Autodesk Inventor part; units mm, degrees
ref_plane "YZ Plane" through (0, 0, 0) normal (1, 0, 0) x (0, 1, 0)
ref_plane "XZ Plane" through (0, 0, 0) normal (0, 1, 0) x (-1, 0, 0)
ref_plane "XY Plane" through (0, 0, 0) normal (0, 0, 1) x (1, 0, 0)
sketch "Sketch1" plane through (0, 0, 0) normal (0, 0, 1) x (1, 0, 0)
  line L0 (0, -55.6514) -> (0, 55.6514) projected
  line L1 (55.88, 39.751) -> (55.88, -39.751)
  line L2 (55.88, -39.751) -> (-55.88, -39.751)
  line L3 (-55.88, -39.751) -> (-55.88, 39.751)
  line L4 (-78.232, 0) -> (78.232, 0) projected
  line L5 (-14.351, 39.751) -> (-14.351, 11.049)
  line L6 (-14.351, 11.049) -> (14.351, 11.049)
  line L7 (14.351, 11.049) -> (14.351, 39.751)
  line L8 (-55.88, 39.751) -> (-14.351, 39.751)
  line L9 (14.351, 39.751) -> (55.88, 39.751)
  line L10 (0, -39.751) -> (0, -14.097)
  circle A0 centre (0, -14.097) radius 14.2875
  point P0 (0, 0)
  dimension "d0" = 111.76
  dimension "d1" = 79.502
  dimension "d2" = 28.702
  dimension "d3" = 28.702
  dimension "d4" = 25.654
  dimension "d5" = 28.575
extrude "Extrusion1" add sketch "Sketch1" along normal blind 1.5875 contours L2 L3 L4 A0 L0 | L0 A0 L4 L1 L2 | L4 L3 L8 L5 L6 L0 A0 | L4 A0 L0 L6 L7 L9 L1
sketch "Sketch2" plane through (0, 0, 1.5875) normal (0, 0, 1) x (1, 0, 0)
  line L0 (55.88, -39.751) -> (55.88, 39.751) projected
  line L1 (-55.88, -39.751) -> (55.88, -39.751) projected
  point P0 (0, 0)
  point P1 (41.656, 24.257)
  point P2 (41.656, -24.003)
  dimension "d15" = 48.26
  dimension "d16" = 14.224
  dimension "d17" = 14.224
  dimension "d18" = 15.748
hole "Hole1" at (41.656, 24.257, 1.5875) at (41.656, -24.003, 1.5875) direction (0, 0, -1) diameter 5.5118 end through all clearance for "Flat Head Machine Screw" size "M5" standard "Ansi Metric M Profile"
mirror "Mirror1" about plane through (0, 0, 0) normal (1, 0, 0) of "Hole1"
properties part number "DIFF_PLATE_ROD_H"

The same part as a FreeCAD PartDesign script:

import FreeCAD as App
import Part
import Sketcher
from FreeCAD import Vector
Q = App.Units.Quantity

doc = App.newDocument("Part")
body = doc.addObject("PartDesign::Body", "Body")

# Sketch on XY plane
sketch1 = body.newObject("Sketcher::SketchObject", "Sketch")
sketch1.AttachmentSupport = (doc.getObject("XY_Plane"), [""])
sketch1.MapMode = "FlatFace"
sketch1.addGeometry(Part.LineSegment(Vector(-56, -40, 0), Vector(56, -40, 0)), False)
sketch1.addGeometry(Part.LineSegment(Vector(56, -40, 0), Vector(56, 40, 0)), False)
sketch1.addGeometry(Part.LineSegment(Vector(56, 40, 0), Vector(14, 40, 0)), False)
sketch1.addGeometry(Part.LineSegment(Vector(14, 40, 0), Vector(14, 11, 0)), False)
sketch1.addGeometry(Part.LineSegment(Vector(14, 11, 0), Vector(-14, 11, 0)), False)
sketch1.addGeometry(Part.LineSegment(Vector(-14, 11, 0), Vector(-14, 40, 0)), False)
sketch1.addGeometry(Part.LineSegment(Vector(-14, 40, 0), Vector(-56, 40, 0)), False)
sketch1.addGeometry(Part.LineSegment(Vector(-56, 40, 0), Vector(-56, -40, 0)), False)
sketch1.addGeometry(Part.Circle(Vector(0, -14, 0), Vector(0, 0, 1), 14), False)
sketch1.addConstraint(Sketcher.Constraint("Coincident", 0, 2, 1, 1))
sketch1.addConstraint(Sketcher.Constraint("Coincident", 1, 2, 2, 1))
sketch1.addConstraint(Sketcher.Constraint("Coincident", 2, 2, 3, 1))
sketch1.addConstraint(Sketcher.Constraint("Coincident", 3, 2, 4, 1))
sketch1.addConstraint(Sketcher.Constraint("Coincident", 4, 2, 5, 1))
sketch1.addConstraint(Sketcher.Constraint("Coincident", 5, 2, 6, 1))
sketch1.addConstraint(Sketcher.Constraint("Coincident", 6, 2, 7, 1))
sketch1.addConstraint(Sketcher.Constraint("Coincident", 7, 2, 0, 1))
sketch1.addConstraint(Sketcher.Constraint("Horizontal", 0))
sketch1.addConstraint(Sketcher.Constraint("Vertical", 1))
sketch1.addConstraint(Sketcher.Constraint("Horizontal", 2))
sketch1.addConstraint(Sketcher.Constraint("Vertical", 3))
sketch1.addConstraint(Sketcher.Constraint("Horizontal", 4))
sketch1.addConstraint(Sketcher.Constraint("Vertical", 5))
sketch1.addConstraint(Sketcher.Constraint("Horizontal", 6))
sketch1.addConstraint(Sketcher.Constraint("Vertical", 7))
sketch1.addConstraint(Sketcher.Constraint("Symmetric", 0, 2, 6, 2, -1, 1))
sketch1.addConstraint(Sketcher.Constraint("Symmetric", 2, 2, 5, 2, -2))
sketch1.addConstraint(Sketcher.Constraint("PointOnObject", 8, 3, -2))
sketch1.addConstraint(Sketcher.Constraint("Equal", 4, 3))
sketch1.addConstraint(Sketcher.Constraint("Diameter", 8, Q("1.125 in")))
sketch1.addConstraint(Sketcher.Constraint("DistanceX", 0, 1, 0, 2, Q("4.4 in")))
sketch1.addConstraint(Sketcher.Constraint("DistanceX", 4, 2, 4, 1, Q("1.13 in")))
sketch1.addConstraint(Sketcher.Constraint("DistanceY", 1, 1, 1, 2, Q("3.13 in")))
sketch1.addConstraint(Sketcher.Constraint("DistanceY", 0, 2, 8, 3, Q("1.01 in")))
pad1 = body.newObject("PartDesign::Pad", "Pad")
pad1.Profile = sketch1
pad1.Length = Q("0.0625 in")

# Sketch on XY plane
sketch2 = body.newObject("Sketcher::SketchObject", "Sketch001")
sketch2.AttachmentSupport = (doc.getObject("XY_Plane"), [""])
sketch2.MapMode = "FlatFace"
sketch2.AttachmentOffset = App.Placement(Vector(0, 0, 0.0625 * 25.4), App.Rotation())
sketch2.addGeometry(Part.Circle(Vector(41.7, 24.3, 0), Vector(0, 0, 1), 2.8), False)
sketch2.addGeometry(Part.Circle(Vector(41.7, -24, 0), Vector(0, 0, 1), 2.8), False)
sketch2.addConstraint(Sketcher.Constraint("Equal", 0, 1))
sketch2.addConstraint(Sketcher.Constraint("Vertical", 0, 3, 1, 3))
sketch2.addConstraint(Sketcher.Constraint("Diameter", 0, Q("0.217 in")))
sketch2.addConstraint(Sketcher.Constraint("DistanceY", 1, 3, 0, 3, Q("1.9 in")))
sketch2.addConstraint(Sketcher.Constraint("DistanceX", -1, 1, 0, 3, Q("1.64 in")))
sketch2.addConstraint(Sketcher.Constraint("DistanceY", -1, 1, 0, 3, Q("0.955 in")))
doc.recompute()
hole = body.newObject("PartDesign::Hole", "Hole")
hole.Profile = sketch2
hole.ThreadType = "None"
hole.Diameter = Q("0.217 in")
hole.DepthType = "ThroughAll"
doc.recompute()

mirrored = body.newObject("PartDesign::Mirrored", "Mirrored")
mirrored.Originals = [hole]
mirrored.MirrorPlane = (doc.getObject("YZ_Plane"), [""])
body.Tip = mirrored

doc.recompute()
